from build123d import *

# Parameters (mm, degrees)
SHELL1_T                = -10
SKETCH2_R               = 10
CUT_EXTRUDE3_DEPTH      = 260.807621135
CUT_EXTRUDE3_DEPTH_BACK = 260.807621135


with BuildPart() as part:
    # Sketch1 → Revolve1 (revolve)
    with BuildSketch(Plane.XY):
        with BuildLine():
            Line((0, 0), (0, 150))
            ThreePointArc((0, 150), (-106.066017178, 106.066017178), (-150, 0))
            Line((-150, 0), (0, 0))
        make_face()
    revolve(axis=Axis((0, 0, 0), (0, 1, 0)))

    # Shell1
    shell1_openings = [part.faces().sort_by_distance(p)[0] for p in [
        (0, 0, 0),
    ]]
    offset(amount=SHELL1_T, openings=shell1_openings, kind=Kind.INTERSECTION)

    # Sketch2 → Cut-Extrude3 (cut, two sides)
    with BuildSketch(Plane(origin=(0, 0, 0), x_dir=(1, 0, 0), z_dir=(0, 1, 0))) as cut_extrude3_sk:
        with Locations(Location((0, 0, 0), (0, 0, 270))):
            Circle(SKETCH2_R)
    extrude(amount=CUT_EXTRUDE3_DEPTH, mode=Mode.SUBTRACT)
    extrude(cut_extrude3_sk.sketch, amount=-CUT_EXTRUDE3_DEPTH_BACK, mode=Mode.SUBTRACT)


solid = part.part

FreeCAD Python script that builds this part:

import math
import FreeCAD as App
import Part
import Sketcher
Q = App.Units.Quantity


def faces_at(feature, points):
    """Names of the faces that lie closest to the given points."""
    faces = feature.Shape.Faces
    near = lambda p: min(range(len(faces)), key=lambda i: faces[i].distToShape(Part.Vertex(*p))[0])
    return sorted({f"Face{near(p) + 1}" for p in points})

doc = App.newDocument("Part")
body = doc.addObject("PartDesign::Body", "Body")

# Sketch on XY plane
sketch1 = doc.addObject("Sketcher::SketchObject", "Sketch")
body.addObject(sketch1)
sketch1.AttachmentSupport = (doc.XY_Plane, [""])
sketch1.MapMode = "FlatFace"
sketch1.addGeometry([
    Part.LineSegment(App.Vector(0, 0, 0), App.Vector(0, 150, 0)),
    Part.ArcOfCircle(Part.Circle(App.Vector(0, 0, 0), App.Vector(0, 0, 1), 150), math.radians(90), math.radians(180)),
    Part.LineSegment(App.Vector(-150, 0, 0), App.Vector(0, 0, 0)),
], False)
sketch1.addConstraint([
    Sketcher.Constraint("Coincident", 0, 2, 1, 1),
    Sketcher.Constraint("Coincident", 1, 2, 2, 1),
    Sketcher.Constraint("Coincident", 2, 2, 0, 1),
    Sketcher.Constraint("Vertical", 0),
    Sketcher.Constraint("Horizontal", 2),
    Sketcher.Constraint("Coincident", 1, 3, -1, 1),
    Sketcher.Constraint("Coincident", 2, 2, -1, 1),
    Sketcher.Constraint("Radius", 1, Q("150 mm")),
])
revolution = doc.addObject("PartDesign::Revolution", "Revolution")
body.addObject(revolution)
revolution.Profile = sketch1
revolution.ReferenceAxis = (sketch1, ["V_Axis"])
revolution.Angle = 360
doc.recompute()

thickness = doc.addObject("PartDesign::Thickness", "Thickness")
body.addObject(thickness)
thickness.Base = (revolution, faces_at(revolution, [(0, 0, 0)]))
thickness.Value = 10
thickness.Reversed = True
thickness.Join = "Intersection"

# Sketch on XZ plane
sketch2 = doc.addObject("Sketcher::SketchObject", "Sketch001")
body.addObject(sketch2)
sketch2.AttachmentSupport = (doc.XZ_Plane, [""])
sketch2.MapMode = "FlatFace"
sketch2.addGeometry(Part.Circle(App.Vector(0, 0, 0), App.Vector(0, 0, 1), 10), False)
sketch2.addConstraint([
    Sketcher.Constraint("Coincident", 0, 3, -1, 1),
    Sketcher.Constraint("Diameter", 0, Q("20 mm")),
])
pocket1 = doc.addObject("PartDesign::Pocket", "Pocket")
body.addObject(pocket1)
pocket1.Profile = sketch2
pocket1.Type = "ThroughAll"
pocket1.Midplane = True

doc.recompute()
